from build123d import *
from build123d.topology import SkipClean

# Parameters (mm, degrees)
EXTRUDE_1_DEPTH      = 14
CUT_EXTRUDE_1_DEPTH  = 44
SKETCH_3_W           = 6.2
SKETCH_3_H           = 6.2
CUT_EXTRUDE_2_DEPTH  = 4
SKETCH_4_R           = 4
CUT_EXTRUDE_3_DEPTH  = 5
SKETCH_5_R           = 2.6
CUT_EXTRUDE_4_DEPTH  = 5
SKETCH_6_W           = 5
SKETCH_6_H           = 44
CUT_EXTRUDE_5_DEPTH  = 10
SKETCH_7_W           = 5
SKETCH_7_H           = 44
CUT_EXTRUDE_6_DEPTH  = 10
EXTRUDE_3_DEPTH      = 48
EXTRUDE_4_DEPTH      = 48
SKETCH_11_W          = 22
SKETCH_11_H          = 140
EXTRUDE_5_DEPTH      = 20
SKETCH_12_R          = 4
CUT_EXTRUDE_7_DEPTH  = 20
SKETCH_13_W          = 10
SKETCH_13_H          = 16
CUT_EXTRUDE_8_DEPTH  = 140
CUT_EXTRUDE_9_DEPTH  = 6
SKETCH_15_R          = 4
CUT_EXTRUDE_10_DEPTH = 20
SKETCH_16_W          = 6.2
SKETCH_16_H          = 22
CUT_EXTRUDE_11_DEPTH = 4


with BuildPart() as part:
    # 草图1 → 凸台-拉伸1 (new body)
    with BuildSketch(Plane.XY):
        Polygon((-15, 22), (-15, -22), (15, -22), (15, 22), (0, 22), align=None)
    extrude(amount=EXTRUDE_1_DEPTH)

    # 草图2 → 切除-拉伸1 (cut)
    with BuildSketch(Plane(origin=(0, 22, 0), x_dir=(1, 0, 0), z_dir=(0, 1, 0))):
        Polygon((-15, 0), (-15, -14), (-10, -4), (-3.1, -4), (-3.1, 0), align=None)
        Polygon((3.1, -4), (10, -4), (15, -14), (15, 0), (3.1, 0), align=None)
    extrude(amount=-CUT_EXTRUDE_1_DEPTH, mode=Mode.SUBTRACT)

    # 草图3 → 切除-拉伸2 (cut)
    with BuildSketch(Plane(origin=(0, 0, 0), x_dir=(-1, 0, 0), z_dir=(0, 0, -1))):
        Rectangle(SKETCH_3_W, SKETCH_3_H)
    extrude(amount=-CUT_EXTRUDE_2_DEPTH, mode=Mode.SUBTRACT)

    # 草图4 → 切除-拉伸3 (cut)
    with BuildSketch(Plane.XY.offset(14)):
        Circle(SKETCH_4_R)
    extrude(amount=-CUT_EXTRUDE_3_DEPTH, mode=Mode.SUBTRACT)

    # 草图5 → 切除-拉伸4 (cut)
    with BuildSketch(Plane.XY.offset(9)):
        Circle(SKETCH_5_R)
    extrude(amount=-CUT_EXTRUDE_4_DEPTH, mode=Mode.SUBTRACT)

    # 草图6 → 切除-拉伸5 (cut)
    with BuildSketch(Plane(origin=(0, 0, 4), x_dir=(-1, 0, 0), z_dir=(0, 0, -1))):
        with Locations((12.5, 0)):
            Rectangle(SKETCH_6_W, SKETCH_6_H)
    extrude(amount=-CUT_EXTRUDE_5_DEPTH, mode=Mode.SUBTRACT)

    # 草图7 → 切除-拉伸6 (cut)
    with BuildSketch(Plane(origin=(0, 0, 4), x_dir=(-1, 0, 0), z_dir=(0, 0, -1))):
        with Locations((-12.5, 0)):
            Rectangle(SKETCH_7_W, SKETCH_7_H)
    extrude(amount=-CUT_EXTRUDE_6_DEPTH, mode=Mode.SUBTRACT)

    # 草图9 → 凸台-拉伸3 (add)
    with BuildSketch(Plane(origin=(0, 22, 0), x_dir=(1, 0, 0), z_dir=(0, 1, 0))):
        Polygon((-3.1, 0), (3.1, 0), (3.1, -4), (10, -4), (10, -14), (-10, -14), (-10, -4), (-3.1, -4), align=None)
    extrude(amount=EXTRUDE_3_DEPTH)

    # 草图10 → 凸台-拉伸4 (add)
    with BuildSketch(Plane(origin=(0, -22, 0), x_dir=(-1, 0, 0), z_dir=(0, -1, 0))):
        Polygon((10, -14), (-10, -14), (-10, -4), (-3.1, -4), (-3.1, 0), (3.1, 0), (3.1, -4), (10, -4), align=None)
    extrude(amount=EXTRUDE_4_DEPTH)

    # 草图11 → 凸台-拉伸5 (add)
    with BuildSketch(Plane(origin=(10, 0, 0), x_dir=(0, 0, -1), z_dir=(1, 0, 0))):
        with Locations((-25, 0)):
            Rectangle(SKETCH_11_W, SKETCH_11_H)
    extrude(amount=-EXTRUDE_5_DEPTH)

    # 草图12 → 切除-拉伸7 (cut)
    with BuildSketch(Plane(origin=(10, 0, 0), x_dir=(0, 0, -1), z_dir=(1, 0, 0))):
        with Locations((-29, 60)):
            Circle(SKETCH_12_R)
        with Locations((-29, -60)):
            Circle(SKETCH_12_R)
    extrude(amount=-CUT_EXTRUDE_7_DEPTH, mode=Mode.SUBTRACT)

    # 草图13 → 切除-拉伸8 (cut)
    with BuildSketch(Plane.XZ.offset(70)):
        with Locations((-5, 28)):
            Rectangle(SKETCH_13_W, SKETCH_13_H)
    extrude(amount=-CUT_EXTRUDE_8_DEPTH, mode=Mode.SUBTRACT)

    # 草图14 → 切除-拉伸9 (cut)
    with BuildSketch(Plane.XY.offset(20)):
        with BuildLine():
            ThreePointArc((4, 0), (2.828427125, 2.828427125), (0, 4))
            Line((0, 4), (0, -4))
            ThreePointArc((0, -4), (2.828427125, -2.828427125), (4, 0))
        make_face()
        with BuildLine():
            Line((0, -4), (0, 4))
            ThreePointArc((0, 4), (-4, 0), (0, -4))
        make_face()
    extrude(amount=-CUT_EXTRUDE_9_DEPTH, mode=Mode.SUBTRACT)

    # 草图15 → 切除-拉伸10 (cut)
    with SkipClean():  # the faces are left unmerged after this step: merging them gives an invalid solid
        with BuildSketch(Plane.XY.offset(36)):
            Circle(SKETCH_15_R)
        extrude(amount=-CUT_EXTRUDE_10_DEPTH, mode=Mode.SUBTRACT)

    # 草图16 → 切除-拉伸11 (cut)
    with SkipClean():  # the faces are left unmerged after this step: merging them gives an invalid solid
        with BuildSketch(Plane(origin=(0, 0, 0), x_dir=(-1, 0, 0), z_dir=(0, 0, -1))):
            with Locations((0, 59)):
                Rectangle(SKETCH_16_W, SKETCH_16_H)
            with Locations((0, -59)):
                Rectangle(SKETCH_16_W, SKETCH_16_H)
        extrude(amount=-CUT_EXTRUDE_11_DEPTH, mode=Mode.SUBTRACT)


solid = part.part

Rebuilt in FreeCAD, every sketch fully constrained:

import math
import FreeCAD as App
import Part
import Sketcher
Q = App.Units.Quantity


def add_polygon(sketch, points):
    """Adds a closed chain of lines whose ends are joined by coincident constraints."""
    first, n = sketch.GeometryCount, len(points)
    for a, b in zip(points, points[1:] + points[:1]):
        sketch.addGeometry(Part.LineSegment(App.Vector(*a, 0), App.Vector(*b, 0)), False)
    for i in range(n):
        sketch.addConstraint(Sketcher.Constraint("Coincident", first + i, 2, first + (i + 1) % n, 1))

doc = App.newDocument("Part")
body = doc.addObject("PartDesign::Body", "Body")

# Sketch on XY plane
sketch1 = doc.addObject("Sketcher::SketchObject", "Sketch")
body.addObject(sketch1)
sketch1.AttachmentSupport = (doc.XY_Plane, [""])
sketch1.MapMode = "FlatFace"
add_polygon(sketch1, [(-15, 22), (-15, -22), (15, -22), (15, 22)])  # lines 0-3
sketch1.addConstraint(Sketcher.Constraint("Vertical", 0))
sketch1.addConstraint(Sketcher.Constraint("Horizontal", 1))
sketch1.addConstraint(Sketcher.Constraint("Vertical", 2))
sketch1.addConstraint(Sketcher.Constraint("Horizontal", 3))
sketch1.addConstraint(Sketcher.Constraint("Symmetric", 0, 2, 2, 2, -1, 1))
sketch1.addConstraint(Sketcher.Constraint("DistanceX", 1, 1, 1, 2, Q("30 mm")))
sketch1.addConstraint(Sketcher.Constraint("DistanceY", 0, 2, 0, 1, Q("44 mm")))
pad1 = doc.addObject("PartDesign::Pad", "Pad")
body.addObject(pad1)
pad1.Profile = sketch1
pad1.Length = 14

# Sketch on XZ plane
sketch2 = doc.addObject("Sketcher::SketchObject", "Sketch001")
body.addObject(sketch2)
sketch2.AttachmentSupport = (doc.XZ_Plane, [""])
sketch2.MapMode = "FlatFace"
sketch2.AttachmentOffset = App.Placement(App.Vector(0, 0, -22), App.Rotation())
add_polygon(sketch2, [(-15, 0), (-15, 14), (-10, 4), (-3.1, 4), (-3.1, 0)])  # lines 0-4
add_polygon(sketch2, [(3.1, 4), (10, 4), (15, 14), (15, 0), (3.1, 0)])  # lines 5-9
sketch2.addConstraint(Sketcher.Constraint("Vertical", 0))
sketch2.addConstraint(Sketcher.Constraint("Horizontal", 2))
sketch2.addConstraint(Sketcher.Constraint("Vertical", 3))
sketch2.addConstraint(Sketcher.Constraint("Horizontal", 4))
sketch2.addConstraint(Sketcher.Constraint("Horizontal", 5))
sketch2.addConstraint(Sketcher.Constraint("Vertical", 7))
sketch2.addConstraint(Sketcher.Constraint("Horizontal", 8))
sketch2.addConstraint(Sketcher.Constraint("Vertical", 9))
sketch2.addConstraint(Sketcher.Constraint("Symmetric", 4, 2, 7, 2, -1, 1))
sketch2.addConstraint(Sketcher.Constraint("Symmetric", 1, 2, 5, 2, -2))
sketch2.addConstraint(Sketcher.Constraint("Symmetric", 3, 2, 8, 2, -2))
sketch2.addConstraint(Sketcher.Constraint("Horizontal", 0, 2, 6, 2))
sketch2.addConstraint(Sketcher.Constraint("DistanceY", 0, 1, 0, 2, Q("14 mm")))
sketch2.addConstraint(Sketcher.Constraint("DistanceY", 3, 2, 3, 1, Q("4 mm")))
sketch2.addConstraint(Sketcher.Constraint("DistanceX", 2, 1, 2, 2, Q("6.9 mm")))
sketch2.addConstraint(Sketcher.Constraint("DistanceX", 4, 2, 4, 1, Q("11.9 mm")))
sketch2.addConstraint(Sketcher.Constraint("DistanceX", 0, 2, -1, 1, Q("15 mm")))
pocket1 = doc.addObject("PartDesign::Pocket", "Pocket")
body.addObject(pocket1)
pocket1.Profile = sketch2
pocket1.Length = 44
pocket1.Reversed = True

# Sketch on XY plane
sketch3 = doc.addObject("Sketcher::SketchObject", "Sketch002")
body.addObject(sketch3)
sketch3.AttachmentSupport = (doc.XY_Plane, [""])
sketch3.MapMode = "FlatFace"
add_polygon(sketch3, [(3, 3), (3, -3), (-3, -3), (-3, 3)])  # lines 0-3
sketch3.addConstraint(Sketcher.Constraint("Vertical", 0))
sketch3.addConstraint(Sketcher.Constraint("Horizontal", 1))
sketch3.addConstraint(Sketcher.Constraint("Vertical", 2))
sketch3.addConstraint(Sketcher.Constraint("Horizontal", 3))
sketch3.addConstraint(Sketcher.Constraint("Symmetric", 0, 2, 2, 2, -1, 1))
sketch3.addConstraint(Sketcher.Constraint("Equal", 3, 0))
sketch3.addConstraint(Sketcher.Constraint("DistanceX", 1, 2, 1, 1, Q("6.2 mm")))
pocket2 = doc.addObject("PartDesign::Pocket", "Pocket001")
body.addObject(pocket2)
pocket2.Profile = sketch3
pocket2.Length = 4
pocket2.Reversed = True

# Sketch on XY plane
sketch4 = doc.addObject("Sketcher::SketchObject", "Sketch003")
body.addObject(sketch4)
sketch4.AttachmentSupport = (doc.XY_Plane, [""])
sketch4.MapMode = "FlatFace"
sketch4.AttachmentOffset = App.Placement(App.Vector(0, 0, 14), App.Rotation())
sketch4.addGeometry(Part.Circle(App.Vector(0, 0, 0), App.Vector(0, 0, 1), 4), False)
sketch4.addConstraint(Sketcher.Constraint("Coincident", 0, 3, -1, 1))
sketch4.addConstraint(Sketcher.Constraint("Diameter", 0, Q("8 mm")))
pocket3 = doc.addObject("PartDesign::Pocket", "Pocket002")
body.addObject(pocket3)
pocket3.Profile = sketch4
pocket3.Length = 5

# Sketch on XY plane
sketch5 = doc.addObject("Sketcher::SketchObject", "Sketch004")
body.addObject(sketch5)
sketch5.AttachmentSupport = (doc.XY_Plane, [""])
sketch5.MapMode = "FlatFace"
sketch5.AttachmentOffset = App.Placement(App.Vector(0, 0, 9), App.Rotation())
sketch5.addGeometry(Part.Circle(App.Vector(0, 0, 0), App.Vector(0, 0, 1), 2.6), False)
sketch5.addConstraint(Sketcher.Constraint("Coincident", 0, 3, -1, 1))
sketch5.addConstraint(Sketcher.Constraint("Diameter", 0, Q("5.2 mm")))
pocket4 = doc.addObject("PartDesign::Pocket", "Pocket003")
body.addObject(pocket4)
pocket4.Profile = sketch5
pocket4.Length = 5

# Sketch on XY plane
sketch6 = doc.addObject("Sketcher::SketchObject", "Sketch005")
body.addObject(sketch6)
sketch6.AttachmentSupport = (doc.XY_Plane, [""])
sketch6.MapMode = "FlatFace"
sketch6.AttachmentOffset = App.Placement(App.Vector(0, 0, 4), App.Rotation())
add_polygon(sketch6, [(-10, 22), (-10, -22), (-15, -22), (-15, 22)])  # lines 0-3
sketch6.addConstraint(Sketcher.Constraint("Vertical", 0))
sketch6.addConstraint(Sketcher.Constraint("Horizontal", 1))
sketch6.addConstraint(Sketcher.Constraint("Vertical", 2))
sketch6.addConstraint(Sketcher.Constraint("Horizontal", 3))
sketch6.addConstraint(Sketcher.Constraint("DistanceX", 1, 2, 1, 1, Q("5 mm")))
sketch6.addConstraint(Sketcher.Constraint("DistanceY", 0, 2, 0, 1, Q("44 mm")))
sketch6.addConstraint(Sketcher.Constraint("DistanceX", 0, 2, -1, 1, Q("10 mm")))
sketch6.addConstraint(Sketcher.Constraint("DistanceY", 0, 2, -1, 1, Q("22 mm")))
pocket5 = doc.addObject("PartDesign::Pocket", "Pocket004")
body.addObject(pocket5)
pocket5.Profile = sketch6
pocket5.Length = 10
pocket5.Reversed = True

# Sketch on XY plane
sketch7 = doc.addObject("Sketcher::SketchObject", "Sketch006")
body.addObject(sketch7)
sketch7.AttachmentSupport = (doc.XY_Plane, [""])
sketch7.MapMode = "FlatFace"
sketch7.AttachmentOffset = App.Placement(App.Vector(0, 0, 4), App.Rotation())
add_polygon(sketch7, [(15, 22), (15, -22), (10, -22), (10, 22)])  # lines 0-3
sketch7.addConstraint(Sketcher.Constraint("Vertical", 0))
sketch7.addConstraint(Sketcher.Constraint("Horizontal", 1))
sketch7.addConstraint(Sketcher.Constraint("Vertical", 2))
sketch7.addConstraint(Sketcher.Constraint("Horizontal", 3))
sketch7.addConstraint(Sketcher.Constraint("DistanceX", 1, 2, 1, 1, Q("5 mm")))
sketch7.addConstraint(Sketcher.Constraint("DistanceY", 0, 2, 0, 1, Q("44 mm")))
sketch7.addConstraint(Sketcher.Constraint("DistanceX", -1, 1, 0, 2, Q("15 mm")))
sketch7.addConstraint(Sketcher.Constraint("DistanceY", 0, 2, -1, 1, Q("22 mm")))
pocket6 = doc.addObject("PartDesign::Pocket", "Pocket005")
body.addObject(pocket6)
pocket6.Profile = sketch7
pocket6.Length = 10
pocket6.Reversed = True

# Sketch on XZ plane
sketch8 = doc.addObject("Sketcher::SketchObject", "Sketch007")
body.addObject(sketch8)
sketch8.AttachmentSupport = (doc.XZ_Plane, [""])
sketch8.MapMode = "FlatFace"
sketch8.AttachmentOffset = App.Placement(App.Vector(0, 0, -22), App.Rotation())
add_polygon(sketch8, [(3.1, 0), (-3.1, 0), (-3.1, 4), (-10, 4), (-10, 14), (10, 14), (10, 4), (3.1, 4)])  # lines 0-7
sketch8.addConstraint(Sketcher.Constraint("Horizontal", 0))
sketch8.addConstraint(Sketcher.Constraint("Vertical", 1))
sketch8.addConstraint(Sketcher.Constraint("Horizontal", 2))
sketch8.addConstraint(Sketcher.Constraint("Vertical", 3))
sketch8.addConstraint(Sketcher.Constraint("Horizontal", 4))
sketch8.addConstraint(Sketcher.Constraint("Vertical", 5))
sketch8.addConstraint(Sketcher.Constraint("Horizontal", 6))
sketch8.addConstraint(Sketcher.Constraint("Vertical", 7))
sketch8.addConstraint(Sketcher.Constraint("Symmetric", 0, 2, 7, 2, -1, 1))
sketch8.addConstraint(Sketcher.Constraint("Symmetric", 2, 2, 5, 2, -2))
sketch8.addConstraint(Sketcher.Constraint("DistanceX", 4, 1, 4, 2, Q("20 mm")))
sketch8.addConstraint(Sketcher.Constraint("DistanceY", 1, 1, 1, 2, Q("4 mm")))
sketch8.addConstraint(Sketcher.Constraint("DistanceY", 3, 1, 3, 2, Q("10 mm")))
sketch8.addConstraint(Sketcher.Constraint("DistanceX", 0, 2, 0, 1, Q("6.2 mm")))
pad2 = doc.addObject("PartDesign::Pad", "Pad001")
body.addObject(pad2)
pad2.Profile = sketch8
pad2.Length = 48
pad2.Reversed = True

# Sketch on XZ plane
sketch9 = doc.addObject("Sketcher::SketchObject", "Sketch008")
body.addObject(sketch9)
sketch9.AttachmentSupport = (doc.XZ_Plane, [""])
sketch9.MapMode = "FlatFace"
sketch9.AttachmentOffset = App.Placement(App.Vector(0, 0, 22), App.Rotation())
add_polygon(sketch9, [(10, 14), (-10, 14), (-10, 4), (-3.1, 4), (-3.1, 0), (3.1, 0), (3.1, 4), (10, 4)])  # lines 0-7
sketch9.addConstraint(Sketcher.Constraint("Horizontal", 0))
sketch9.addConstraint(Sketcher.Constraint("Vertical", 1))
sketch9.addConstraint(Sketcher.Constraint("Horizontal", 2))
sketch9.addConstraint(Sketcher.Constraint("Vertical", 3))
sketch9.addConstraint(Sketcher.Constraint("Horizontal", 4))
sketch9.addConstraint(Sketcher.Constraint("Vertical", 5))
sketch9.addConstraint(Sketcher.Constraint("Horizontal", 6))
sketch9.addConstraint(Sketcher.Constraint("Vertical", 7))
sketch9.addConstraint(Sketcher.Constraint("Symmetric", 3, 2, 4, 2, -1, 1))
sketch9.addConstraint(Sketcher.Constraint("Symmetric", 1, 2, 6, 2, -2))
sketch9.addConstraint(Sketcher.Constraint("DistanceX", 0, 2, 0, 1, Q("20 mm")))
sketch9.addConstraint(Sketcher.Constraint("DistanceY", 1, 2, 1, 1, Q("10 mm")))
sketch9.addConstraint(Sketcher.Constraint("DistanceY", 3, 2, 3, 1, Q("4 mm")))
sketch9.addConstraint(Sketcher.Constraint("DistanceX", 2, 1, 2, 2, Q("6.9 mm")))
pad3 = doc.addObject("PartDesign::Pad", "Pad002")
body.addObject(pad3)
pad3.Profile = sketch9
pad3.Length = 48

# Sketch on YZ plane
sketch10 = doc.addObject("Sketcher::SketchObject", "Sketch009")
body.addObject(sketch10)
sketch10.AttachmentSupport = (doc.YZ_Plane, [""])
sketch10.MapMode = "FlatFace"
sketch10.AttachmentOffset = App.Placement(App.Vector(0, 0, 10), App.Rotation())
add_polygon(sketch10, [(70, 36), (-70, 36), (-70, 14), (70, 14)])  # lines 0-3
sketch10.addConstraint(Sketcher.Constraint("Horizontal", 0))
sketch10.addConstraint(Sketcher.Constraint("Vertical", 1))
sketch10.addConstraint(Sketcher.Constraint("Horizontal", 2))
sketch10.addConstraint(Sketcher.Constraint("Vertical", 3))
sketch10.addConstraint(Sketcher.Constraint("DistanceX", 0, 2, 0, 1, Q("140 mm")))
sketch10.addConstraint(Sketcher.Constraint("DistanceY", 1, 2, 1, 1, Q("22 mm")))
sketch10.addConstraint(Sketcher.Constraint("DistanceX", 0, 2, -1, 1, Q("70 mm")))
sketch10.addConstraint(Sketcher.Constraint("DistanceY", -1, 1, 0, 2, Q("36 mm")))
pad4 = doc.addObject("PartDesign::Pad", "Pad003")
body.addObject(pad4)
pad4.Profile = sketch10
pad4.Length = 20
pad4.Reversed = True

# Sketch on YZ plane
sketch11 = doc.addObject("Sketcher::SketchObject", "Sketch010")
body.addObject(sketch11)
sketch11.AttachmentSupport = (doc.YZ_Plane, [""])
sketch11.MapMode = "FlatFace"
sketch11.AttachmentOffset = App.Placement(App.Vector(0, 0, 10), App.Rotation())
sketch11.addGeometry(Part.Circle(App.Vector(60, 29, 0), App.Vector(0, 0, 1), 4), False)
sketch11.addGeometry(Part.Circle(App.Vector(-60, 29, 0), App.Vector(0, 0, 1), 4), False)
sketch11.addConstraint(Sketcher.Constraint("Equal", 0, 1))
sketch11.addConstraint(Sketcher.Constraint("Symmetric", 0, 3, 1, 3, -2))
sketch11.addConstraint(Sketcher.Constraint("Diameter", 0, Q("8 mm")))
sketch11.addConstraint(Sketcher.Constraint("DistanceX", -1, 1, 0, 3, Q("60 mm")))
sketch11.addConstraint(Sketcher.Constraint("DistanceY", -1, 1, 0, 3, Q("29 mm")))
pocket7 = doc.addObject("PartDesign::Pocket", "Pocket006")
body.addObject(pocket7)
pocket7.Profile = sketch11
pocket7.Length = 20

# Sketch on XZ plane
sketch12 = doc.addObject("Sketcher::SketchObject", "Sketch011")
body.addObject(sketch12)
sketch12.AttachmentSupport = (doc.XZ_Plane, [""])
sketch12.MapMode = "FlatFace"
sketch12.AttachmentOffset = App.Placement(App.Vector(0, 0, 70), App.Rotation())
add_polygon(sketch12, [(-10, 36), (-10, 20), (0, 20), (0, 36)])  # lines 0-3
sketch12.addConstraint(Sketcher.Constraint("Vertical", 0))
sketch12.addConstraint(Sketcher.Constraint("Horizontal", 1))
sketch12.addConstraint(Sketcher.Constraint("Vertical", 2))
sketch12.addConstraint(Sketcher.Constraint("Horizontal", 3))
sketch12.addConstraint(Sketcher.Constraint("PointOnObject", 1, 2, -2))
sketch12.addConstraint(Sketcher.Constraint("DistanceX", 1, 1, 1, 2, Q("10 mm")))
sketch12.addConstraint(Sketcher.Constraint("DistanceY", 0, 2, 0, 1, Q("16 mm")))
sketch12.addConstraint(Sketcher.Constraint("DistanceY", -1, 1, 0, 2, Q("20 mm")))
pocket8 = doc.addObject("PartDesign::Pocket", "Pocket007")
body.addObject(pocket8)
pocket8.Profile = sketch12
pocket8.Length = 140

# Sketch on XY plane
sketch13 = doc.addObject("Sketcher::SketchObject", "Sketch012")
body.addObject(sketch13)
sketch13.AttachmentSupport = (doc.XY_Plane, [""])
sketch13.MapMode = "FlatFace"
sketch13.AttachmentOffset = App.Placement(App.Vector(0, 0, 20), App.Rotation())
sketch13.addGeometry(Part.ArcOfCircle(Part.Circle(App.Vector(0, 0, 0), App.Vector(0, 0, 1), 4), math.radians(0), math.radians(90)), False)
sketch13.addGeometry(Part.ArcOfCircle(Part.Circle(App.Vector(0, 0, 0), App.Vector(0, 0, 1), 4), math.radians(90), math.radians(270)), False)
sketch13.addGeometry(Part.ArcOfCircle(Part.Circle(App.Vector(0, 0, 0), App.Vector(0, 0, 1), 4), math.radians(-90), math.radians(0)), False)
sketch13.addConstraint(Sketcher.Constraint("Tangent", 0, 2, 1, 1))
sketch13.addConstraint(Sketcher.Constraint("Tangent", 1, 2, 2, 1))
sketch13.addConstraint(Sketcher.Constraint("Tangent", 2, 2, 0, 1))
sketch13.addConstraint(Sketcher.Constraint("Coincident", 0, 3, -1, 1))
sketch13.addConstraint(Sketcher.Constraint("PointOnObject", 0, 2, -2))
sketch13.addConstraint(Sketcher.Constraint("PointOnObject", 1, 2, -2))
sketch13.addConstraint(Sketcher.Constraint("PointOnObject", 2, 2, -1))
sketch13.addConstraint(Sketcher.Constraint("Radius", 0, Q("4 mm")))
pocket9 = doc.addObject("PartDesign::Pocket", "Pocket008")
body.addObject(pocket9)
pocket9.Profile = sketch13
pocket9.Length = 6

# Sketch on XY plane
sketch14 = doc.addObject("Sketcher::SketchObject", "Sketch013")
body.addObject(sketch14)
sketch14.AttachmentSupport = (doc.XY_Plane, [""])
sketch14.MapMode = "FlatFace"
sketch14.AttachmentOffset = App.Placement(App.Vector(0, 0, 36), App.Rotation())
sketch14.addGeometry(Part.Circle(App.Vector(0, 0, 0), App.Vector(0, 0, 1), 4), False)
sketch14.addConstraint(Sketcher.Constraint("Coincident", 0, 3, -1, 1))
sketch14.addConstraint(Sketcher.Constraint("Diameter", 0, Q("8 mm")))
pocket10 = doc.addObject("PartDesign::Pocket", "Pocket009")
body.addObject(pocket10)
pocket10.Profile = sketch14
pocket10.Length = 20

# Sketch on XY plane
sketch15 = doc.addObject("Sketcher::SketchObject", "Sketch014")
body.addObject(sketch15)
sketch15.AttachmentSupport = (doc.XY_Plane, [""])
sketch15.MapMode = "FlatFace"
add_polygon(sketch15, [(3, 70), (3, 48), (-3, 48), (-3, 70)])  # lines 0-3
add_polygon(sketch15, [(3, -48), (3, -70), (-3, -70), (-3, -48)])  # lines 4-7
sketch15.addConstraint(Sketcher.Constraint("Vertical", 0))
sketch15.addConstraint(Sketcher.Constraint("Horizontal", 1))
sketch15.addConstraint(Sketcher.Constraint("Vertical", 2))
sketch15.addConstraint(Sketcher.Constraint("Horizontal", 3))
sketch15.addConstraint(Sketcher.Constraint("Vertical", 4))
sketch15.addConstraint(Sketcher.Constraint("Horizontal", 5))
sketch15.addConstraint(Sketcher.Constraint("Vertical", 6))
sketch15.addConstraint(Sketcher.Constraint("Horizontal", 7))
sketch15.addConstraint(Sketcher.Constraint("Symmetric", 2, 2, 4, 2, -1, 1))
sketch15.addConstraint(Sketcher.Constraint("Symmetric", 0, 2, 6, 2, -1, 1))
sketch15.addConstraint(Sketcher.Constraint("Vertical", 3, 2, 4, 2))
sketch15.addConstraint(Sketcher.Constraint("DistanceY", 0, 2, 0, 1, Q("22 mm")))
sketch15.addConstraint(Sketcher.Constraint("DistanceX", 1, 2, 1, 1, Q("6.2 mm")))
sketch15.addConstraint(Sketcher.Constraint("DistanceY", -1, 1, 0, 2, Q("48 mm")))
pocket11 = doc.addObject("PartDesign::Pocket", "Pocket010")
body.addObject(pocket11)
pocket11.Profile = sketch15
pocket11.Length = 4
pocket11.Reversed = True

doc.recompute()
